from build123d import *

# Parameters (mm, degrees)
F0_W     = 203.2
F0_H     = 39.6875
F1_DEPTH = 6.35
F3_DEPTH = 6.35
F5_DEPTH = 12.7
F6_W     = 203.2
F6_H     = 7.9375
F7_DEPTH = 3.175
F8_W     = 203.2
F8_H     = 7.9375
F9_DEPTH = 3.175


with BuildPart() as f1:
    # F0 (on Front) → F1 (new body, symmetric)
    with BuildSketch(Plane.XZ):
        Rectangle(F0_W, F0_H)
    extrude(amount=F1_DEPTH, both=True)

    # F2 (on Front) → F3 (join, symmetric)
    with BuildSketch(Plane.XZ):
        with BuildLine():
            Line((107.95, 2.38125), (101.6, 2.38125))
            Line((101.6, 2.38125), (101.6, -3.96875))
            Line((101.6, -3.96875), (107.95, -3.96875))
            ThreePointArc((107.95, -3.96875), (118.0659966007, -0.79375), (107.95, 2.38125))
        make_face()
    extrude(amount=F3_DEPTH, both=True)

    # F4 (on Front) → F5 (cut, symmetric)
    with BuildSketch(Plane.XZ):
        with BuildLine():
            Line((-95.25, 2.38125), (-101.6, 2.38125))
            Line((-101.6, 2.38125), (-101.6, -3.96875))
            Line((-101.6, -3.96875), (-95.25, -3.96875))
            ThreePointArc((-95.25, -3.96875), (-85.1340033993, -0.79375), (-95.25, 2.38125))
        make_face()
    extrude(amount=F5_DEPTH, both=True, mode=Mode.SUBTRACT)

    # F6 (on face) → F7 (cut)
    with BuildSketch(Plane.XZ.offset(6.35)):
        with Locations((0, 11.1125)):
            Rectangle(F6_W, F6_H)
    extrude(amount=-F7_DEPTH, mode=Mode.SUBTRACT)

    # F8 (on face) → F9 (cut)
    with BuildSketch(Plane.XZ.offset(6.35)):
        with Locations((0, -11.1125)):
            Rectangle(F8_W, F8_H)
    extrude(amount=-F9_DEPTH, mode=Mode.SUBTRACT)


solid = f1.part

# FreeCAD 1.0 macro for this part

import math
import FreeCAD as App
import Part
import Sketcher
Q = App.Units.Quantity


def add_polygon(sketch, points):
    """Adds a closed chain of lines whose ends are joined by coincident constraints."""
    first, n = sketch.GeometryCount, len(points)
    for a, b in zip(points, points[1:] + points[:1]):
        sketch.addGeometry(Part.LineSegment(App.Vector(*a, 0), App.Vector(*b, 0)), False)
    for i in range(n):
        sketch.addConstraint(Sketcher.Constraint("Coincident", first + i, 2, first + (i + 1) % n, 1))

doc = App.newDocument("Part")
body = doc.addObject("PartDesign::Body", "Body")

# Sketch on XZ plane
sketch1 = doc.addObject("Sketcher::SketchObject", "Sketch")
body.addObject(sketch1)
sketch1.AttachmentSupport = (doc.XZ_Plane, [""])
sketch1.MapMode = "FlatFace"
add_polygon(sketch1, [(-101.6, 19.84375), (-101.6, -19.84375), (101.6, -19.84375), (101.6, 19.84375)])  # lines 0-3
sketch1.addConstraint(Sketcher.Constraint("Vertical", 0))
sketch1.addConstraint(Sketcher.Constraint("Horizontal", 1))
sketch1.addConstraint(Sketcher.Constraint("Vertical", 2))
sketch1.addConstraint(Sketcher.Constraint("Horizontal", 3))
sketch1.addConstraint(Sketcher.Constraint("Symmetric", 0, 2, 2, 2, -1, 1))
sketch1.addConstraint(Sketcher.Constraint("DistanceX", 1, 1, 1, 2, Q("8 in")))
sketch1.addConstraint(Sketcher.Constraint("DistanceY", 0, 2, 0, 1, Q("1.5625 in")))
pad1 = doc.addObject("PartDesign::Pad", "Pad")
body.addObject(pad1)
pad1.Profile = sketch1
pad1.Length = Q("0.5 in")
pad1.Midplane = True

# Sketch on XZ plane
sketch2 = doc.addObject("Sketcher::SketchObject", "Sketch001")
body.addObject(sketch2)
sketch2.AttachmentSupport = (doc.XZ_Plane, [""])
sketch2.MapMode = "FlatFace"
sketch2.addGeometry(Part.LineSegment(App.Vector(107.95, 2.38125, 0), App.Vector(101.6, 2.38125, 0)), False)
sketch2.addGeometry(Part.LineSegment(App.Vector(101.6, 2.38125, 0), App.Vector(101.6, -3.96875, 0)), False)
sketch2.addGeometry(Part.LineSegment(App.Vector(101.6, -3.96875, 0), App.Vector(107.95, -3.96875, 0)), False)
sketch2.addGeometry(Part.ArcOfCircle(Part.Circle(App.Vector(112.509747, -0.79375, 0), App.Vector(0, 0, 1), 5.55625), math.radians(-145.150095), math.radians(145.150095)), False)
sketch2.addConstraint(Sketcher.Constraint("Coincident", 0, 2, 1, 1))
sketch2.addConstraint(Sketcher.Constraint("Coincident", 1, 2, 2, 1))
sketch2.addConstraint(Sketcher.Constraint("Coincident", 2, 2, 3, 1))
sketch2.addConstraint(Sketcher.Constraint("Coincident", 3, 2, 0, 1))
sketch2.addConstraint(Sketcher.Constraint("Horizontal", 0))
sketch2.addConstraint(Sketcher.Constraint("Vertical", 1))
sketch2.addConstraint(Sketcher.Constraint("Horizontal", 2))
sketch2.addConstraint(Sketcher.Constraint("Vertical", 2, 2, 3, 2))
sketch2.addConstraint(Sketcher.Constraint("Equal", 2, 1))
sketch2.addConstraint(Sketcher.Constraint("DistanceX", -1, 1, 0, 2, Q("4 in")))
sketch2.addConstraint(Sketcher.Constraint("Radius", 3, Q("0.21875 in")))
sketch2.addConstraint(Sketcher.Constraint("DistanceX", 0, 2, 0, 1, Q("0.25 in")))
sketch2.addConstraint(Sketcher.Constraint("DistanceY", 3, 3, -1, 1, Q("0.03125 in")))
pad2 = doc.addObject("PartDesign::Pad", "Pad001")
body.addObject(pad2)
pad2.Profile = sketch2
pad2.Length = Q("0.5 in")
pad2.Midplane = True

# Sketch on XZ plane
sketch3 = doc.addObject("Sketcher::SketchObject", "Sketch002")
body.addObject(sketch3)
sketch3.AttachmentSupport = (doc.XZ_Plane, [""])
sketch3.MapMode = "FlatFace"
sketch3.addGeometry(Part.LineSegment(App.Vector(-95.25, 2.38125, 0), App.Vector(-101.6, 2.38125, 0)), False)
sketch3.addGeometry(Part.LineSegment(App.Vector(-101.6, 2.38125, 0), App.Vector(-101.6, -3.96875, 0)), False)
sketch3.addGeometry(Part.LineSegment(App.Vector(-101.6, -3.96875, 0), App.Vector(-95.25, -3.96875, 0)), False)
sketch3.addGeometry(Part.ArcOfCircle(Part.Circle(App.Vector(-90.690253, -0.79375, 0), App.Vector(0, 0, 1), 5.55625), math.radians(-145.150095), math.radians(145.150095)), False)
sketch3.addConstraint(Sketcher.Constraint("Coincident", 0, 2, 1, 1))
sketch3.addConstraint(Sketcher.Constraint("Coincident", 1, 2, 2, 1))
sketch3.addConstraint(Sketcher.Constraint("Coincident", 2, 2, 3, 1))
sketch3.addConstraint(Sketcher.Constraint("Coincident", 3, 2, 0, 1))
sketch3.addConstraint(Sketcher.Constraint("Horizontal", 0))
sketch3.addConstraint(Sketcher.Constraint("Vertical", 1))
sketch3.addConstraint(Sketcher.Constraint("Horizontal", 2))
sketch3.addConstraint(Sketcher.Constraint("Vertical", 2, 2, 3, 2))
sketch3.addConstraint(Sketcher.Constraint("Equal", 2, 1))
sketch3.addConstraint(Sketcher.Constraint("DistanceX", 0, 2, -1, 1, Q("4 in")))
sketch3.addConstraint(Sketcher.Constraint("Radius", 3, Q("0.21875 in")))
sketch3.addConstraint(Sketcher.Constraint("DistanceX", 0, 2, 0, 1, Q("0.25 in")))
sketch3.addConstraint(Sketcher.Constraint("DistanceY", 3, 3, -1, 1, Q("0.03125 in")))
pocket1 = doc.addObject("PartDesign::Pocket", "Pocket")
body.addObject(pocket1)
pocket1.Profile = sketch3
pocket1.Length = Q("1 in")
pocket1.Midplane = True

# Sketch on XZ plane
sketch4 = doc.addObject("Sketcher::SketchObject", "Sketch003")
body.addObject(sketch4)
sketch4.AttachmentSupport = (doc.XZ_Plane, [""])
sketch4.MapMode = "FlatFace"
sketch4.AttachmentOffset = App.Placement(App.Vector(0, 0, 0.25 * 25.4), App.Rotation())
add_polygon(sketch4, [(-101.6, 15.08125), (-101.6, 7.14375), (101.6, 7.14375), (101.6, 15.08125)])  # lines 0-3
sketch4.addConstraint(Sketcher.Constraint("Vertical", 0))
sketch4.addConstraint(Sketcher.Constraint("Horizontal", 1))
sketch4.addConstraint(Sketcher.Constraint("Vertical", 2))
sketch4.addConstraint(Sketcher.Constraint("Horizontal", 3))
sketch4.addConstraint(Sketcher.Constraint("DistanceX", 1, 1, 1, 2, Q("8 in")))
sketch4.addConstraint(Sketcher.Constraint("DistanceX", 0, 2, -1, 1, Q("4 in")))
sketch4.addConstraint(Sketcher.Constraint("DistanceY", 0, 2, 0, 1, Q("0.3125 in")))
sketch4.addConstraint(Sketcher.Constraint("DistanceY", -1, 1, 0, 2, Q("0.28125 in")))
pocket2 = doc.addObject("PartDesign::Pocket", "Pocket001")
body.addObject(pocket2)
pocket2.Profile = sketch4
pocket2.Length = Q("0.125 in")

# Sketch on XZ plane
sketch5 = doc.addObject("Sketcher::SketchObject", "Sketch004")
body.addObject(sketch5)
sketch5.AttachmentSupport = (doc.XZ_Plane, [""])
sketch5.MapMode = "FlatFace"
sketch5.AttachmentOffset = App.Placement(App.Vector(0, 0, 0.25 * 25.4), App.Rotation())
add_polygon(sketch5, [(-101.6, -7.14375), (-101.6, -15.08125), (101.6, -15.08125), (101.6, -7.14375)])  # lines 0-3
sketch5.addConstraint(Sketcher.Constraint("Vertical", 0))
sketch5.addConstraint(Sketcher.Constraint("Horizontal", 1))
sketch5.addConstraint(Sketcher.Constraint("Vertical", 2))
sketch5.addConstraint(Sketcher.Constraint("Horizontal", 3))
sketch5.addConstraint(Sketcher.Constraint("DistanceX", 1, 1, 1, 2, Q("8 in")))
sketch5.addConstraint(Sketcher.Constraint("DistanceX", 0, 2, -1, 1, Q("4 in")))
sketch5.addConstraint(Sketcher.Constraint("DistanceY", 0, 2, 0, 1, Q("0.3125 in")))
sketch5.addConstraint(Sketcher.Constraint("DistanceY", 0, 2, -1, 1, Q("0.59375 in")))
pocket3 = doc.addObject("PartDesign::Pocket", "Pocket002")
body.addObject(pocket3)
pocket3.Profile = sketch5
pocket3.Length = Q("0.125 in")

doc.recompute()
